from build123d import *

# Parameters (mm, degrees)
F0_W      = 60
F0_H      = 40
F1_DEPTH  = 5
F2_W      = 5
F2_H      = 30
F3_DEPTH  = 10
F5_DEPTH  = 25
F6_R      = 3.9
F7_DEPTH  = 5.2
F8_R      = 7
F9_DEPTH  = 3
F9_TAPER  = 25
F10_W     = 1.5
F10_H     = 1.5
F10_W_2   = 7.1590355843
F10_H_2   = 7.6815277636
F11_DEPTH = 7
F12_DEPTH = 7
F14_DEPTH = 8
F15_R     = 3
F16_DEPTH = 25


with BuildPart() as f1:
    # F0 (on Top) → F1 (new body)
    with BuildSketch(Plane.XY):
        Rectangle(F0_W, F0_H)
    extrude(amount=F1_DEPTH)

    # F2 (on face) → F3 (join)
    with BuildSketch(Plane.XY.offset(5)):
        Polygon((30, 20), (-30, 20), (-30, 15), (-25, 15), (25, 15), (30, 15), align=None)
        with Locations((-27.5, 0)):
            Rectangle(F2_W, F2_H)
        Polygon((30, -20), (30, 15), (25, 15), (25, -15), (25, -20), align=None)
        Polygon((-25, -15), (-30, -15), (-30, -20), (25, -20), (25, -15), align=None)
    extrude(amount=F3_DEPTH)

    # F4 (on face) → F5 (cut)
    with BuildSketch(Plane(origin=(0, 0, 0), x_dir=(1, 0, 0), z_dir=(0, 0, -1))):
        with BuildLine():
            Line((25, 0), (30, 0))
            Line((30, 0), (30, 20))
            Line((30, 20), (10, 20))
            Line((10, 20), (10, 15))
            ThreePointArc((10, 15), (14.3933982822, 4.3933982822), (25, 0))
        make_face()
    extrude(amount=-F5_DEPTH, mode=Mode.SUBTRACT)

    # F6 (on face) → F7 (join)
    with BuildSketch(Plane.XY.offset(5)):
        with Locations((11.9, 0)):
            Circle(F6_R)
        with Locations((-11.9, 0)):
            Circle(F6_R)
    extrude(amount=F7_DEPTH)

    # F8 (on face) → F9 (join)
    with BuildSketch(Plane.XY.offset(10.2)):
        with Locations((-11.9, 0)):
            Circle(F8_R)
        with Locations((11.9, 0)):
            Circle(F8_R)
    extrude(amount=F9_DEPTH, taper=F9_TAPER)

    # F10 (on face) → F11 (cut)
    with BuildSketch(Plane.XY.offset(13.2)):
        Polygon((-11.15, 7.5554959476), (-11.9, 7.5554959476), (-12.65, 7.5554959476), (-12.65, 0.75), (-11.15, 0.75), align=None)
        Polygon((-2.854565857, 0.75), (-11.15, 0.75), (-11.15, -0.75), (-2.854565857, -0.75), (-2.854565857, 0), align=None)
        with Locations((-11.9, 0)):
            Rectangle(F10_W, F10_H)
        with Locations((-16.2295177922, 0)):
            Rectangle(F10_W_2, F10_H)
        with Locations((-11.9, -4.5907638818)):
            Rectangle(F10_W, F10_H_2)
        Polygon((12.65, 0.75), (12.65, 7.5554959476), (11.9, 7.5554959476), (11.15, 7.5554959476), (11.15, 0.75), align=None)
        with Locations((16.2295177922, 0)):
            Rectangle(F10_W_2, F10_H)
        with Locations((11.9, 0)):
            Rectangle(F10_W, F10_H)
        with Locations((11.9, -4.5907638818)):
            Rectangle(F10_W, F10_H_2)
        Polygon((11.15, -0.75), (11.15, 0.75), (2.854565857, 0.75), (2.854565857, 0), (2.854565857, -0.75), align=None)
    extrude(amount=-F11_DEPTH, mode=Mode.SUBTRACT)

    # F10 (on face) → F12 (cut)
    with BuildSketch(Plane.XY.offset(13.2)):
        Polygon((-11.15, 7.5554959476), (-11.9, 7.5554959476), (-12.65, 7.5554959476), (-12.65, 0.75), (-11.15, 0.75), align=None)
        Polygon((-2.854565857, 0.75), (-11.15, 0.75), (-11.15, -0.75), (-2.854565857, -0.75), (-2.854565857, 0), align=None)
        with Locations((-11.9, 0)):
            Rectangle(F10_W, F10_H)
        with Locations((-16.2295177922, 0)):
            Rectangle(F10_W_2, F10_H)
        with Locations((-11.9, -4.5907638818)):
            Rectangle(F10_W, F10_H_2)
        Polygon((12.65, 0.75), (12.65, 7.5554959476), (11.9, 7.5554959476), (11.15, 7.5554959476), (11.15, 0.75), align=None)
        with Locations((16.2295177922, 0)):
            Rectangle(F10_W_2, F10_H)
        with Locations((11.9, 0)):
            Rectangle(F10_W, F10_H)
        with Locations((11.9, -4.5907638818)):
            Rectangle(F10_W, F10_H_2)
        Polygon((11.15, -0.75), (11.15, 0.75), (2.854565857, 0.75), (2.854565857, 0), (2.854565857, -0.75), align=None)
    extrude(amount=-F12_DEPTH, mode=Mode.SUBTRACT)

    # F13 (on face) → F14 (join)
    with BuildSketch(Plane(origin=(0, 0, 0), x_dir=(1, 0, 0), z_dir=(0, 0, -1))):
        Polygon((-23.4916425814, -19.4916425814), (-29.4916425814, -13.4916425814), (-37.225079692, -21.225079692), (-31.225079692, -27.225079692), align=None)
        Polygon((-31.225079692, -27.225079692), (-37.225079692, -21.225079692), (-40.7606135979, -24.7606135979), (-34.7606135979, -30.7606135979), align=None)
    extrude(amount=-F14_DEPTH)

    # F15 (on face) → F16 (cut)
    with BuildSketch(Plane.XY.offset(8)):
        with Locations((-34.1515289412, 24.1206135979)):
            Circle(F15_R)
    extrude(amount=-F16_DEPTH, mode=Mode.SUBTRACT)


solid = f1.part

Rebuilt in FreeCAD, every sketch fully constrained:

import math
import FreeCAD as App
import Part
import Sketcher
from FreeCAD import Vector
Q = App.Units.Quantity

doc = App.newDocument("Part")
body = doc.addObject("PartDesign::Body", "Body")

# Sketch on XY plane
sketch1 = body.newObject("Sketcher::SketchObject", "Sketch")
sketch1.AttachmentSupport = (doc.getObject("XY_Plane"), [""])
sketch1.MapMode = "FlatFace"
sketch1.addGeometry([
    Part.LineSegment(Vector(-30, 20, 0), Vector(-30, -20, 0)),
    Part.LineSegment(Vector(-30, -20, 0), Vector(30, -20, 0)),
    Part.LineSegment(Vector(30, -20, 0), Vector(30, 20, 0)),
    Part.LineSegment(Vector(30, 20, 0), Vector(-30, 20, 0)),
], False)
sketch1.addConstraint([
    Sketcher.Constraint("Coincident", 0, 2, 1, 1),
    Sketcher.Constraint("Coincident", 1, 2, 2, 1),
    Sketcher.Constraint("Coincident", 2, 2, 3, 1),
    Sketcher.Constraint("Coincident", 3, 2, 0, 1),
    Sketcher.Constraint("Vertical", 0),
    Sketcher.Constraint("Horizontal", 1),
    Sketcher.Constraint("Vertical", 2),
    Sketcher.Constraint("Horizontal", 3),
    Sketcher.Constraint("Symmetric", 0, 2, 2, 2, -1, 1),
    Sketcher.Constraint("DistanceX", 1, 1, 1, 2, Q("60 mm")),
    Sketcher.Constraint("DistanceY", 0, 2, 0, 1, Q("40 mm")),
])
pad1 = body.newObject("PartDesign::Pad", "Pad")
pad1.Profile = sketch1
pad1.Length = 5

# Sketch on XY plane
sketch2 = body.newObject("Sketcher::SketchObject", "Sketch001")
sketch2.AttachmentSupport = (doc.getObject("XY_Plane"), [""])
sketch2.MapMode = "FlatFace"
sketch2.AttachmentOffset = App.Placement(Vector(0, 0, 5), App.Rotation())
sketch2.addGeometry([
    Part.LineSegment(Vector(30, 20, 0), Vector(-30, 20, 0)),  # 0
    Part.LineSegment(Vector(-30, 20, 0), Vector(-30, -20, 0)),  # 1
    Part.LineSegment(Vector(-30, -20, 0), Vector(30, -20, 0)),  # 2
    Part.LineSegment(Vector(30, -20, 0), Vector(30, 20, 0)),  # 3
    Part.LineSegment(Vector(-25, -15, 0), Vector(-25, 15, 0)),  # 4
    Part.LineSegment(Vector(-25, 15, 0), Vector(25, 15, 0)),  # 5
    Part.LineSegment(Vector(25, 15, 0), Vector(25, -15, 0)),  # 6
    Part.LineSegment(Vector(25, -15, 0), Vector(-25, -15, 0)),  # 7
], False)
sketch2.addConstraint([
    Sketcher.Constraint("Coincident", 0, 2, 1, 1),
    Sketcher.Constraint("Coincident", 1, 2, 2, 1),
    Sketcher.Constraint("Coincident", 2, 2, 3, 1),
    Sketcher.Constraint("Coincident", 3, 2, 0, 1),
    Sketcher.Constraint("Coincident", 4, 2, 5, 1),
    Sketcher.Constraint("Coincident", 5, 2, 6, 1),
    Sketcher.Constraint("Coincident", 6, 2, 7, 1),
    Sketcher.Constraint("Coincident", 7, 2, 4, 1),
    Sketcher.Constraint("Horizontal", 0),
    Sketcher.Constraint("Vertical", 1),
    Sketcher.Constraint("Horizontal", 2),
    Sketcher.Constraint("Vertical", 3),
    Sketcher.Constraint("Vertical", 4),
    Sketcher.Constraint("Horizontal", 5),
    Sketcher.Constraint("Vertical", 6),
    Sketcher.Constraint("Horizontal", 7),
    Sketcher.Constraint("Symmetric", 0, 2, 2, 2, -1, 1),
    Sketcher.Constraint("Symmetric", 4, 2, 6, 2, -1, 1),
    Sketcher.Constraint("DistanceX", 0, 2, 0, 1, Q("60 mm")),
    Sketcher.Constraint("DistanceX", 5, 1, 5, 2, Q("50 mm")),
    Sketcher.Constraint("DistanceY", 1, 2, 1, 1, Q("40 mm")),
    Sketcher.Constraint("DistanceY", 4, 1, 4, 2, Q("30 mm")),
])
pad2 = body.newObject("PartDesign::Pad", "Pad001")
pad2.Profile = sketch2
pad2.Length = 10

# Sketch on XY plane
sketch3 = body.newObject("Sketcher::SketchObject", "Sketch002")
sketch3.AttachmentSupport = (doc.getObject("XY_Plane"), [""])
sketch3.MapMode = "FlatFace"
sketch3.addGeometry([
    Part.LineSegment(Vector(25, 0, 0), Vector(30, 0, 0)),  # 0
    Part.LineSegment(Vector(30, 0, 0), Vector(30, -20, 0)),  # 1
    Part.LineSegment(Vector(30, -20, 0), Vector(10, -20, 0)),  # 2
    Part.LineSegment(Vector(10, -20, 0), Vector(10, -15, 0)),  # 3
    Part.ArcOfCircle(Part.Circle(Vector(25, -15, 0), Vector(0, 0, 1), 15), math.radians(90), math.radians(180)),  # 4
], False)
sketch3.addConstraint([
    Sketcher.Constraint("Coincident", 0, 2, 1, 1),
    Sketcher.Constraint("Coincident", 1, 2, 2, 1),
    Sketcher.Constraint("Coincident", 2, 2, 3, 1),
    Sketcher.Constraint("Tangent", 3, 2, 4, 2),
    Sketcher.Constraint("Tangent", 4, 1, 0, 1),
    Sketcher.Constraint("Horizontal", 0),
    Sketcher.Constraint("Vertical", 1),
    Sketcher.Constraint("Horizontal", 2),
    Sketcher.Constraint("Vertical", 3),
    Sketcher.Constraint("PointOnObject", 0, 2, -1),
    Sketcher.Constraint("Equal", 2, 1),
    Sketcher.Constraint("Radius", 4, Q("15 mm")),
    Sketcher.Constraint("DistanceX", 0, 1, 0, 2, Q("5 mm")),
    Sketcher.Constraint("DistanceX", -1, 1, 4, 3, Q("25 mm")),
])
pocket1 = body.newObject("PartDesign::Pocket", "Pocket")
pocket1.Profile = sketch3
pocket1.Length = 25
pocket1.Reversed = True

# Sketch on XY plane
sketch4 = body.newObject("Sketcher::SketchObject", "Sketch003")
sketch4.AttachmentSupport = (doc.getObject("XY_Plane"), [""])
sketch4.MapMode = "FlatFace"
sketch4.AttachmentOffset = App.Placement(Vector(0, 0, 5), App.Rotation())
sketch4.addGeometry([
    Part.Circle(Vector(11.9, 0, 0), Vector(0, 0, 1), 3.9),
    Part.Circle(Vector(-11.9, 0, 0), Vector(0, 0, 1), 3.9),
], False)
sketch4.addConstraint([
    Sketcher.Constraint("Equal", 0, 1),
    Sketcher.Constraint("Symmetric", 0, 3, 1, 3, -1, 1),
    Sketcher.Constraint("PointOnObject", 0, 3, -1),
    Sketcher.Constraint("Diameter", 0, Q("7.8 mm")),
    Sketcher.Constraint("DistanceX", -1, 1, 0, 3, Q("11.9 mm")),
])
pad3 = body.newObject("PartDesign::Pad", "Pad002")
pad3.Profile = sketch4
pad3.Length = 5.2

# Sketch on XY plane
sketch5 = body.newObject("Sketcher::SketchObject", "Sketch004")
sketch5.AttachmentSupport = (doc.getObject("XY_Plane"), [""])
sketch5.MapMode = "FlatFace"
sketch5.AttachmentOffset = App.Placement(Vector(0, 0, 10.2), App.Rotation())
sketch5.addGeometry([
    Part.Circle(Vector(-12, 0, 0), Vector(0, 0, 1), 7),
    Part.Circle(Vector(12, 0, 0), Vector(0, 0, 1), 7),
], False)
sketch5.addConstraint([
    Sketcher.Constraint("Equal", 0, 1),
    Sketcher.Constraint("Symmetric", 0, 3, 1, 3, -1, 1),
    Sketcher.Constraint("PointOnObject", 0, 3, -1),
    Sketcher.Constraint("Diameter", 0, Q("14 mm")),
    Sketcher.Constraint("DistanceX", 0, 3, -1, 1, Q("11.9 mm")),
])
pad4 = body.newObject("PartDesign::Pad", "Pad003")
pad4.Profile = sketch5
pad4.Length = 3
pad4.TaperAngle = -25

# Sketch on XY plane
sketch6 = body.newObject("Sketcher::SketchObject", "Sketch005")
sketch6.AttachmentSupport = (doc.getObject("XY_Plane"), [""])
sketch6.MapMode = "FlatFace"
sketch6.AttachmentOffset = App.Placement(Vector(0, 0, 13.2), App.Rotation())
sketch6.addGeometry([
    Part.LineSegment(Vector(-11.2, 7.6, 0), Vector(-12.7, 7.6, 0)),  # 0
    Part.LineSegment(Vector(-12.7, 7.6, 0), Vector(-12.7, 0.8, 0)),  # 1
    Part.LineSegment(Vector(-12.7, 0.8, 0), Vector(-19.8, 0.8, 0)),  # 2
    Part.LineSegment(Vector(-19.8, 0.8, 0), Vector(-19.8, -0.8, 0)),  # 3
    Part.LineSegment(Vector(-19.8, -0.8, 0), Vector(-12.7, -0.8, 0)),  # 4
    Part.LineSegment(Vector(-12.7, -0.8, 0), Vector(-12.7, -8.4, 0)),  # 5
    Part.LineSegment(Vector(-12.7, -8.4, 0), Vector(-11.2, -8.4, 0)),  # 6
    Part.LineSegment(Vector(-11.2, -8.4, 0), Vector(-11.2, -0.8, 0)),  # 7
    Part.LineSegment(Vector(-11.2, -0.8, 0), Vector(-2.9, -0.8, 0)),  # 8
    Part.LineSegment(Vector(-2.9, -0.8, 0), Vector(-2.9, 0.8, 0)),  # 9
    Part.LineSegment(Vector(-2.9, 0.8, 0), Vector(-11.2, 0.8, 0)),  # 10
    Part.LineSegment(Vector(-11.2, 0.8, 0), Vector(-11.2, 7.6, 0)),  # 11
    Part.LineSegment(Vector(12.7, 0.8, 0), Vector(12.7, 7.6, 0)),  # 12
    Part.LineSegment(Vector(12.7, 7.6, 0), Vector(11.2, 7.6, 0)),  # 13
    Part.LineSegment(Vector(11.2, 7.6, 0), Vector(11.2, 0.8, 0)),  # 14
    Part.LineSegment(Vector(11.2, 0.8, 0), Vector(2.9, 0.8, 0)),  # 15
    Part.LineSegment(Vector(2.9, 0.8, 0), Vector(2.9, -0.8, 0)),  # 16
    Part.LineSegment(Vector(2.9, -0.8, 0), Vector(11.2, -0.8, 0)),  # 17
    Part.LineSegment(Vector(11.2, -0.8, 0), Vector(11.2, -8.4, 0)),  # 18
    Part.LineSegment(Vector(11.2, -8.4, 0), Vector(12.7, -8.4, 0)),  # 19
    Part.LineSegment(Vector(12.7, -8.4, 0), Vector(12.7, -0.8, 0)),  # 20
    Part.LineSegment(Vector(12.7, -0.8, 0), Vector(19.8, -0.8, 0)),  # 21
    Part.LineSegment(Vector(19.8, -0.8, 0), Vector(19.8, 0.8, 0)),  # 22
    Part.LineSegment(Vector(19.8, 0.8, 0), Vector(12.7, 0.8, 0)),  # 23
], False)
sketch6.addConstraint([
    Sketcher.Constraint("Coincident", 0, 2, 1, 1),
    Sketcher.Constraint("Coincident", 1, 2, 2, 1),
    Sketcher.Constraint("Coincident", 2, 2, 3, 1),
    Sketcher.Constraint("Coincident", 3, 2, 4, 1),
    Sketcher.Constraint("Coincident", 4, 2, 5, 1),
    Sketcher.Constraint("Coincident", 5, 2, 6, 1),
    Sketcher.Constraint("Coincident", 6, 2, 7, 1),
    Sketcher.Constraint("Coincident", 7, 2, 8, 1),
    Sketcher.Constraint("Coincident", 8, 2, 9, 1),
    Sketcher.Constraint("Coincident", 9, 2, 10, 1),
    Sketcher.Constraint("Coincident", 10, 2, 11, 1),
    Sketcher.Constraint("Coincident", 11, 2, 0, 1),
    Sketcher.Constraint("Coincident", 12, 2, 13, 1),
    Sketcher.Constraint("Coincident", 13, 2, 14, 1),
    Sketcher.Constraint("Coincident", 14, 2, 15, 1),
    Sketcher.Constraint("Coincident", 15, 2, 16, 1),
    Sketcher.Constraint("Coincident", 16, 2, 17, 1),
    Sketcher.Constraint("Coincident", 17, 2, 18, 1),
    Sketcher.Constraint("Coincident", 18, 2, 19, 1),
    Sketcher.Constraint("Coincident", 19, 2, 20, 1),
    Sketcher.Constraint("Coincident", 20, 2, 21, 1),
    Sketcher.Constraint("Coincident", 21, 2, 22, 1),
    Sketcher.Constraint("Coincident", 22, 2, 23, 1),
    Sketcher.Constraint("Coincident", 23, 2, 12, 1),
    Sketcher.Constraint("Horizontal", 0),
    Sketcher.Constraint("Vertical", 1),
    Sketcher.Constraint("Horizontal", 2),
    Sketcher.Constraint("Vertical", 3),
    Sketcher.Constraint("Horizontal", 4),
    Sketcher.Constraint("Vertical", 5),
    Sketcher.Constraint("Horizontal", 6),
    Sketcher.Constraint("Vertical", 7),
    Sketcher.Constraint("Horizontal", 8),
    Sketcher.Constraint("Vertical", 9),
    Sketcher.Constraint("Horizontal", 10),
    Sketcher.Constraint("Vertical", 11),
    Sketcher.Constraint("Vertical", 12),
    Sketcher.Constraint("Horizontal", 13),
    Sketcher.Constraint("Vertical", 14),
    Sketcher.Constraint("Horizontal", 15),
    Sketcher.Constraint("Vertical", 16),
    Sketcher.Constraint("Horizontal", 17),
    Sketcher.Constraint("Vertical", 18),
    Sketcher.Constraint("Horizontal", 19),
    Sketcher.Constraint("Vertical", 20),
    Sketcher.Constraint("Horizontal", 21),
    Sketcher.Constraint("Vertical", 22),
    Sketcher.Constraint("Horizontal", 23),
    Sketcher.Constraint("Symmetric", 7, 2, 14, 2, -1, 1),
    Sketcher.Constraint("Symmetric", 9, 2, 16, 2, -1, 1),
    Sketcher.Constraint("Symmetric", 1, 2, 20, 2, -1, 1),
    Sketcher.Constraint("Symmetric", 3, 2, 22, 2, -1, 1),
    Sketcher.Constraint("Symmetric", 0, 2, 12, 2, -2),
    Sketcher.Constraint("Symmetric", 10, 2, 14, 2, -2),
    Sketcher.Constraint("Symmetric", 6, 2, 18, 2, -2),
    Sketcher.Constraint("Symmetric", 4, 2, 20, 2, -2),
    Sketcher.Constraint("Horizontal", 4, 2, 7, 2),
    Sketcher.Constraint("Equal", 19, 3),
    Sketcher.Constraint("DistanceX", 0, 2, 0, 1, Q("1.5 mm")),
    Sketcher.Constraint("DistanceX", 11, 2, 12, 2, Q("23.8 mm")),
    Sketcher.Constraint("DistanceX", 2, 2, 2, 1, Q("7.159036 mm")),
    Sketcher.Constraint("DistanceX", 8, 1, 8, 2, Q("8.295434 mm")),
    Sketcher.Constraint("DistanceY", 1, 2, 1, 1, Q("6.805496 mm")),
    Sketcher.Constraint("DistanceY", 5, 2, 5, 1, Q("7.681528 mm")),
])
pocket2 = body.newObject("PartDesign::Pocket", "Pocket001")
pocket2.Profile = sketch6
pocket2.Length = 7

# Sketch on XY plane
sketch7 = body.newObject("Sketcher::SketchObject", "Sketch006")
sketch7.AttachmentSupport = (doc.getObject("XY_Plane"), [""])
sketch7.MapMode = "FlatFace"
sketch7.AttachmentOffset = App.Placement(Vector(0, 0, 13.2), App.Rotation())
sketch7.addGeometry([
    Part.LineSegment(Vector(-11.2, 7.6, 0), Vector(-12.7, 7.6, 0)),  # 0
    Part.LineSegment(Vector(-12.7, 7.6, 0), Vector(-12.7, 0.8, 0)),  # 1
    Part.LineSegment(Vector(-12.7, 0.8, 0), Vector(-19.8, 0.8, 0)),  # 2
    Part.LineSegment(Vector(-19.8, 0.8, 0), Vector(-19.8, -0.8, 0)),  # 3
    Part.LineSegment(Vector(-19.8, -0.8, 0), Vector(-12.7, -0.8, 0)),  # 4
    Part.LineSegment(Vector(-12.7, -0.8, 0), Vector(-12.7, -8.4, 0)),  # 5
    Part.LineSegment(Vector(-12.7, -8.4, 0), Vector(-11.2, -8.4, 0)),  # 6
    Part.LineSegment(Vector(-11.2, -8.4, 0), Vector(-11.2, -0.8, 0)),  # 7
    Part.LineSegment(Vector(-11.2, -0.8, 0), Vector(-2.9, -0.8, 0)),  # 8
    Part.LineSegment(Vector(-2.9, -0.8, 0), Vector(-2.9, 0.8, 0)),  # 9
    Part.LineSegment(Vector(-2.9, 0.8, 0), Vector(-11.2, 0.8, 0)),  # 10
    Part.LineSegment(Vector(-11.2, 0.8, 0), Vector(-11.2, 7.6, 0)),  # 11
    Part.LineSegment(Vector(12.7, 0.8, 0), Vector(12.7, 7.6, 0)),  # 12
    Part.LineSegment(Vector(12.7, 7.6, 0), Vector(11.2, 7.6, 0)),  # 13
    Part.LineSegment(Vector(11.2, 7.6, 0), Vector(11.2, 0.8, 0)),  # 14
    Part.LineSegment(Vector(11.2, 0.8, 0), Vector(2.9, 0.8, 0)),  # 15
    Part.LineSegment(Vector(2.9, 0.8, 0), Vector(2.9, -0.8, 0)),  # 16
    Part.LineSegment(Vector(2.9, -0.8, 0), Vector(11.2, -0.8, 0)),  # 17
    Part.LineSegment(Vector(11.2, -0.8, 0), Vector(11.2, -8.4, 0)),  # 18
    Part.LineSegment(Vector(11.2, -8.4, 0), Vector(12.7, -8.4, 0)),  # 19
    Part.LineSegment(Vector(12.7, -8.4, 0), Vector(12.7, -0.8, 0)),  # 20
    Part.LineSegment(Vector(12.7, -0.8, 0), Vector(19.8, -0.8, 0)),  # 21
    Part.LineSegment(Vector(19.8, -0.8, 0), Vector(19.8, 0.8, 0)),  # 22
    Part.LineSegment(Vector(19.8, 0.8, 0), Vector(12.7, 0.8, 0)),  # 23
], False)
sketch7.addConstraint([
    Sketcher.Constraint("Coincident", 0, 2, 1, 1),
    Sketcher.Constraint("Coincident", 1, 2, 2, 1),
    Sketcher.Constraint("Coincident", 2, 2, 3, 1),
    Sketcher.Constraint("Coincident", 3, 2, 4, 1),
    Sketcher.Constraint("Coincident", 4, 2, 5, 1),
    Sketcher.Constraint("Coincident", 5, 2, 6, 1),
    Sketcher.Constraint("Coincident", 6, 2, 7, 1),
    Sketcher.Constraint("Coincident", 7, 2, 8, 1),
    Sketcher.Constraint("Coincident", 8, 2, 9, 1),
    Sketcher.Constraint("Coincident", 9, 2, 10, 1),
    Sketcher.Constraint("Coincident", 10, 2, 11, 1),
    Sketcher.Constraint("Coincident", 11, 2, 0, 1),
    Sketcher.Constraint("Coincident", 12, 2, 13, 1),
    Sketcher.Constraint("Coincident", 13, 2, 14, 1),
    Sketcher.Constraint("Coincident", 14, 2, 15, 1),
    Sketcher.Constraint("Coincident", 15, 2, 16, 1),
    Sketcher.Constraint("Coincident", 16, 2, 17, 1),
    Sketcher.Constraint("Coincident", 17, 2, 18, 1),
    Sketcher.Constraint("Coincident", 18, 2, 19, 1),
    Sketcher.Constraint("Coincident", 19, 2, 20, 1),
    Sketcher.Constraint("Coincident", 20, 2, 21, 1),
    Sketcher.Constraint("Coincident", 21, 2, 22, 1),
    Sketcher.Constraint("Coincident", 22, 2, 23, 1),
    Sketcher.Constraint("Coincident", 23, 2, 12, 1),
    Sketcher.Constraint("Horizontal", 0),
    Sketcher.Constraint("Vertical", 1),
    Sketcher.Constraint("Horizontal", 2),
    Sketcher.Constraint("Vertical", 3),
    Sketcher.Constraint("Horizontal", 4),
    Sketcher.Constraint("Vertical", 5),
    Sketcher.Constraint("Horizontal", 6),
    Sketcher.Constraint("Vertical", 7),
    Sketcher.Constraint("Horizontal", 8),
    Sketcher.Constraint("Vertical", 9),
    Sketcher.Constraint("Horizontal", 10),
    Sketcher.Constraint("Vertical", 11),
    Sketcher.Constraint("Vertical", 12),
    Sketcher.Constraint("Horizontal", 13),
    Sketcher.Constraint("Vertical", 14),
    Sketcher.Constraint("Horizontal", 15),
    Sketcher.Constraint("Vertical", 16),
    Sketcher.Constraint("Horizontal", 17),
    Sketcher.Constraint("Vertical", 18),
    Sketcher.Constraint("Horizontal", 19),
    Sketcher.Constraint("Vertical", 20),
    Sketcher.Constraint("Horizontal", 21),
    Sketcher.Constraint("Vertical", 22),
    Sketcher.Constraint("Horizontal", 23),
    Sketcher.Constraint("Symmetric", 7, 2, 14, 2, -1, 1),
    Sketcher.Constraint("Symmetric", 9, 2, 16, 2, -1, 1),
    Sketcher.Constraint("Symmetric", 1, 2, 20, 2, -1, 1),
    Sketcher.Constraint("Symmetric", 3, 2, 22, 2, -1, 1),
    Sketcher.Constraint("Symmetric", 0, 2, 12, 2, -2),
    Sketcher.Constraint("Symmetric", 10, 2, 14, 2, -2),
    Sketcher.Constraint("Symmetric", 6, 2, 18, 2, -2),
    Sketcher.Constraint("Symmetric", 4, 2, 20, 2, -2),
    Sketcher.Constraint("Horizontal", 4, 2, 7, 2),
    Sketcher.Constraint("Equal", 19, 3),
    Sketcher.Constraint("DistanceX", 0, 2, 0, 1, Q("1.5 mm")),
    Sketcher.Constraint("DistanceX", 11, 2, 12, 2, Q("23.8 mm")),
    Sketcher.Constraint("DistanceX", 2, 2, 2, 1, Q("7.159036 mm")),
    Sketcher.Constraint("DistanceX", 8, 1, 8, 2, Q("8.295434 mm")),
    Sketcher.Constraint("DistanceY", 1, 2, 1, 1, Q("6.805496 mm")),
    Sketcher.Constraint("DistanceY", 5, 2, 5, 1, Q("7.681528 mm")),
])
pocket3 = body.newObject("PartDesign::Pocket", "Pocket002")
pocket3.Profile = sketch7
pocket3.Length = 7

# Sketch on XY plane
sketch8 = body.newObject("Sketcher::SketchObject", "Sketch007")
sketch8.AttachmentSupport = (doc.getObject("XY_Plane"), [""])
sketch8.MapMode = "FlatFace"
sketch8.addGeometry([
    Part.LineSegment(Vector(-23, 19, 0), Vector(-29, 13, 0)),
    Part.LineSegment(Vector(-29, 13, 0), Vector(-41, 25, 0)),
    Part.LineSegment(Vector(-41, 25, 0), Vector(-35, 31, 0)),
    Part.LineSegment(Vector(-35, 31, 0), Vector(-23, 19, 0)),
], False)
sketch8.addConstraint([
    Sketcher.Constraint("Coincident", 0, 2, 1, 1),
    Sketcher.Constraint("Coincident", 1, 2, 2, 1),
    Sketcher.Constraint("Coincident", 2, 2, 3, 1),
    Sketcher.Constraint("Coincident", 3, 2, 0, 1),
    Sketcher.Constraint("Perpendicular", 0, 1),
    Sketcher.Constraint("Perpendicular", 1, 2),
    Sketcher.Constraint("Perpendicular", 2, 3),
    Sketcher.Constraint("Angle", 0, Q("-135 deg")),
    Sketcher.Constraint("DistanceX", 1, 2, 2, 2, Q("6 mm")),
    Sketcher.Constraint("Distance", 1, Q("15.936732 mm")),
    Sketcher.Constraint("DistanceX", 0, 2, -1, 1, Q("29.491643 mm")),
    Sketcher.Constraint("DistanceY", -1, 1, 0, 2, Q("13.491643 mm")),
])
pad5 = body.newObject("PartDesign::Pad", "Pad004")
pad5.Profile = sketch8
pad5.Length = 8

# Sketch on XY plane
sketch9 = body.newObject("Sketcher::SketchObject", "Sketch008")
sketch9.AttachmentSupport = (doc.getObject("XY_Plane"), [""])
sketch9.MapMode = "FlatFace"
sketch9.AttachmentOffset = App.Placement(Vector(0, 0, 8), App.Rotation())
sketch9.addGeometry(Part.Circle(Vector(-34.2, 24.1, 0), Vector(0, 0, 1), 3), False)
sketch9.addConstraint([
    Sketcher.Constraint("Diameter", 0, Q("6 mm")),
    Sketcher.Constraint("DistanceX", 0, 3, -1, 1, Q("34.151529 mm")),
    Sketcher.Constraint("DistanceY", -1, 1, 0, 3, Q("24.120614 mm")),
])
pocket4 = body.newObject("PartDesign::Pocket", "Pocket003")
pocket4.Profile = sketch9
pocket4.Length = 25

doc.recompute()
